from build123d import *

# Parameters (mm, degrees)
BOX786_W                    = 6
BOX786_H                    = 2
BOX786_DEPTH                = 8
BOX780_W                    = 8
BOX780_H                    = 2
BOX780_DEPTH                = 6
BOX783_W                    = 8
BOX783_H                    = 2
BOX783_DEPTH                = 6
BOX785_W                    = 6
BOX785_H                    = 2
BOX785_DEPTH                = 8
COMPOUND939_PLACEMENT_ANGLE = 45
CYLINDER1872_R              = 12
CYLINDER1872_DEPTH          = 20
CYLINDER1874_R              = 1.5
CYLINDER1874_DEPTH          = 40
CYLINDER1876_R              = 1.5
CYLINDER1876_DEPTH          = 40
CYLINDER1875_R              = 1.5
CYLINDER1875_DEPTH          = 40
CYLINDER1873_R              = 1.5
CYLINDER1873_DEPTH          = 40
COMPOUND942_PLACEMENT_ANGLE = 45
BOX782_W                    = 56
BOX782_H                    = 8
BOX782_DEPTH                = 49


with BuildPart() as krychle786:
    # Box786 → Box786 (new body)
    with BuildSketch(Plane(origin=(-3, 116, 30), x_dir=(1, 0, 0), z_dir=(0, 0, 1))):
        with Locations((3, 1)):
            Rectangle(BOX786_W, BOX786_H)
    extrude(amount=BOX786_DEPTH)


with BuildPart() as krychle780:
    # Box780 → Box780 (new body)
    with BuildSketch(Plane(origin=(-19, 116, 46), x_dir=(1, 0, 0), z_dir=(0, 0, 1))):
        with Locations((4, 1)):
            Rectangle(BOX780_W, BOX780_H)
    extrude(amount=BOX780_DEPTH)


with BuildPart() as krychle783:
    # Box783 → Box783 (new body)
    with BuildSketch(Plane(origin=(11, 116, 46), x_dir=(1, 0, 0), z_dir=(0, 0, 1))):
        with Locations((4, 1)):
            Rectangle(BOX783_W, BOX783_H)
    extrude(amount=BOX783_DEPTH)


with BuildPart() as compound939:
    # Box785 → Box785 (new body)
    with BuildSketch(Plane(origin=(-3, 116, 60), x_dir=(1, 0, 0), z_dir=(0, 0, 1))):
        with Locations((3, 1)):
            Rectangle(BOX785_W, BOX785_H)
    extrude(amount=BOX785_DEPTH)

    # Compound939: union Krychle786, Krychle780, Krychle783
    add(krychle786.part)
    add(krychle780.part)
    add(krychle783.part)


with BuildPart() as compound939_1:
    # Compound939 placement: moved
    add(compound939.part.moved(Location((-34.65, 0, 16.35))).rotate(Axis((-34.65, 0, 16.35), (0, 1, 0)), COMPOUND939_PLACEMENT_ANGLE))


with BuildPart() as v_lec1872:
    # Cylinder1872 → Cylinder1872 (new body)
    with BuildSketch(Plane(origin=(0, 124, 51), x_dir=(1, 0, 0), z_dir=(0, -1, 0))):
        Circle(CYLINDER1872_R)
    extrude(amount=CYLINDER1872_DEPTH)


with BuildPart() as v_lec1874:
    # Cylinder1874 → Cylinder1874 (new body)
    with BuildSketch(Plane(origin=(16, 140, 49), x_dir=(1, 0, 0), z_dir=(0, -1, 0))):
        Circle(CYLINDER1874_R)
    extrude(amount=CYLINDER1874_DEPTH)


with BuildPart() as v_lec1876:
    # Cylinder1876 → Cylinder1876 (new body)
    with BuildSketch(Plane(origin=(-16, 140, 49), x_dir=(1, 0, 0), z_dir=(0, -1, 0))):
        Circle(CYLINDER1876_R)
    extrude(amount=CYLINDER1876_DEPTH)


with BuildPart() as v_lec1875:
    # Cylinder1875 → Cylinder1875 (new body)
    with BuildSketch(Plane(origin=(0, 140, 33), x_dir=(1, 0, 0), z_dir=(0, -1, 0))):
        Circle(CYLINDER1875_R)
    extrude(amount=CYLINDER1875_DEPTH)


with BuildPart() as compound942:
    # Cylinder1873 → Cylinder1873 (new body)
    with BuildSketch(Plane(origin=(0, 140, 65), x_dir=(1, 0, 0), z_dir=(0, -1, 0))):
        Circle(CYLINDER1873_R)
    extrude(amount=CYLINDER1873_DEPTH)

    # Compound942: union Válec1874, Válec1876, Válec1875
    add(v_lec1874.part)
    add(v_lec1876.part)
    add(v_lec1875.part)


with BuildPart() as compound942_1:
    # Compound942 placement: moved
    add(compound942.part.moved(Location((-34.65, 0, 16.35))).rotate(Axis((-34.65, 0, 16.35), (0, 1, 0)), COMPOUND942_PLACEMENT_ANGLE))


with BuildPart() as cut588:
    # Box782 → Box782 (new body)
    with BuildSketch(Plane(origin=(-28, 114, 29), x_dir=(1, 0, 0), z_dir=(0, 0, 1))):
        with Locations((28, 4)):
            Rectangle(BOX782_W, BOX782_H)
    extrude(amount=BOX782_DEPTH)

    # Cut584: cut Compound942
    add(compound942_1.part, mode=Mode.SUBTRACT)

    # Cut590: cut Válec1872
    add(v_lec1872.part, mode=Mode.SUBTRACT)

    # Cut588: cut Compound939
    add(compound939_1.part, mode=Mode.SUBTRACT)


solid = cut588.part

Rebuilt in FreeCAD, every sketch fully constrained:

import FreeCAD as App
import Part
import Sketcher

doc = App.newDocument("Part")
body = doc.addObject("PartDesign::Body", "Body")

sketch1 = body.newObject("Sketcher::SketchObject", "Sketch")
sketch1.AttachmentSupport = (doc.getObject("XY_Plane"), [""])
sketch1.MapMode = "FlatFace"
sketch1.AttachmentOffset = App.Placement(App.Vector(0, 0, 30), App.Rotation())
sketch1.addGeometry(Part.LineSegment(App.Vector(-3, 118, 0), App.Vector(-3, 116, 0)), False)
sketch1.addGeometry(Part.LineSegment(App.Vector(-3, 116, 0), App.Vector(3, 116, 0)), False)
sketch1.addGeometry(Part.LineSegment(App.Vector(3, 116, 0), App.Vector(3, 118, 0)), False)
sketch1.addGeometry(Part.LineSegment(App.Vector(3, 118, 0), App.Vector(-3, 118, 0)), False)
sketch1.addConstraint(Sketcher.Constraint("Coincident", 0, 2, 1, 1))
sketch1.addConstraint(Sketcher.Constraint("Coincident", 1, 2, 2, 1))
sketch1.addConstraint(Sketcher.Constraint("Coincident", 2, 2, 3, 1))
sketch1.addConstraint(Sketcher.Constraint("Coincident", 3, 2, 0, 1))
sketch1.addConstraint(Sketcher.Constraint("Vertical", 0))
sketch1.addConstraint(Sketcher.Constraint("Horizontal", 1))
sketch1.addConstraint(Sketcher.Constraint("Vertical", 2))
sketch1.addConstraint(Sketcher.Constraint("Horizontal", 3))
sketch1.addConstraint(Sketcher.Constraint("DistanceX", 1, 1, 1, 2, 6.0))
sketch1.addConstraint(Sketcher.Constraint("DistanceY", 0, 2, 0, 1, 2.0))
sketch1.addConstraint(Sketcher.Constraint("DistanceX", 0, 2, -1, 1, 3.0))
sketch1.addConstraint(Sketcher.Constraint("DistanceY", -1, 1, 0, 2, 116.0))
pad1 = body.newObject("PartDesign::Pad", "Pad")
pad1.Profile = sketch1
pad1.Length = 8
body2 = doc.addObject("PartDesign::Body", "Body001")

sketch2 = body2.newObject("Sketcher::SketchObject", "Sketch001")
sketch2.AttachmentSupport = (doc.getObject("XY_Plane001"), [""])
sketch2.MapMode = "FlatFace"
sketch2.AttachmentOffset = App.Placement(App.Vector(0, 0, 46), App.Rotation())
sketch2.addGeometry(Part.LineSegment(App.Vector(-19, 118, 0), App.Vector(-19, 116, 0)), False)
sketch2.addGeometry(Part.LineSegment(App.Vector(-19, 116, 0), App.Vector(-11, 116, 0)), False)
sketch2.addGeometry(Part.LineSegment(App.Vector(-11, 116, 0), App.Vector(-11, 118, 0)), False)
sketch2.addGeometry(Part.LineSegment(App.Vector(-11, 118, 0), App.Vector(-19, 118, 0)), False)
sketch2.addConstraint(Sketcher.Constraint("Coincident", 0, 2, 1, 1))
sketch2.addConstraint(Sketcher.Constraint("Coincident", 1, 2, 2, 1))
sketch2.addConstraint(Sketcher.Constraint("Coincident", 2, 2, 3, 1))
sketch2.addConstraint(Sketcher.Constraint("Coincident", 3, 2, 0, 1))
sketch2.addConstraint(Sketcher.Constraint("Vertical", 0))
sketch2.addConstraint(Sketcher.Constraint("Horizontal", 1))
sketch2.addConstraint(Sketcher.Constraint("Vertical", 2))
sketch2.addConstraint(Sketcher.Constraint("Horizontal", 3))
sketch2.addConstraint(Sketcher.Constraint("DistanceX", 1, 1, 1, 2, 8.0))
sketch2.addConstraint(Sketcher.Constraint("DistanceY", 0, 2, 0, 1, 2.0))
sketch2.addConstraint(Sketcher.Constraint("DistanceX", 0, 2, -1, 1, 19.0))
sketch2.addConstraint(Sketcher.Constraint("DistanceY", -1, 1, 0, 2, 116.0))
pad2 = body2.newObject("PartDesign::Pad", "Pad001")
pad2.Profile = sketch2
pad2.Length = 6
body3 = doc.addObject("PartDesign::Body", "Body002")

sketch3 = body3.newObject("Sketcher::SketchObject", "Sketch002")
sketch3.AttachmentSupport = (doc.getObject("XY_Plane002"), [""])
sketch3.MapMode = "FlatFace"
sketch3.AttachmentOffset = App.Placement(App.Vector(0, 0, 46), App.Rotation())
sketch3.addGeometry(Part.LineSegment(App.Vector(11, 118, 0), App.Vector(11, 116, 0)), False)
sketch3.addGeometry(Part.LineSegment(App.Vector(11, 116, 0), App.Vector(19, 116, 0)), False)
sketch3.addGeometry(Part.LineSegment(App.Vector(19, 116, 0), App.Vector(19, 118, 0)), False)
sketch3.addGeometry(Part.LineSegment(App.Vector(19, 118, 0), App.Vector(11, 118, 0)), False)
sketch3.addConstraint(Sketcher.Constraint("Coincident", 0, 2, 1, 1))
sketch3.addConstraint(Sketcher.Constraint("Coincident", 1, 2, 2, 1))
sketch3.addConstraint(Sketcher.Constraint("Coincident", 2, 2, 3, 1))
sketch3.addConstraint(Sketcher.Constraint("Coincident", 3, 2, 0, 1))
sketch3.addConstraint(Sketcher.Constraint("Vertical", 0))
sketch3.addConstraint(Sketcher.Constraint("Horizontal", 1))
sketch3.addConstraint(Sketcher.Constraint("Vertical", 2))
sketch3.addConstraint(Sketcher.Constraint("Horizontal", 3))
sketch3.addConstraint(Sketcher.Constraint("DistanceX", 1, 1, 1, 2, 8.0))
sketch3.addConstraint(Sketcher.Constraint("DistanceY", 0, 2, 0, 1, 2.0))
sketch3.addConstraint(Sketcher.Constraint("DistanceX", -1, 1, 0, 2, 11.0))
sketch3.addConstraint(Sketcher.Constraint("DistanceY", -1, 1, 0, 2, 116.0))
pad3 = body3.newObject("PartDesign::Pad", "Pad002")
pad3.Profile = sketch3
pad3.Length = 6
body4 = doc.addObject("PartDesign::Body", "Body003")
body4.AllowCompound = True

sketch4 = body4.newObject("Sketcher::SketchObject", "Sketch003")
sketch4.AttachmentSupport = (doc.getObject("XY_Plane003"), [""])
sketch4.MapMode = "FlatFace"
sketch4.AttachmentOffset = App.Placement(App.Vector(0, 0, 60), App.Rotation())
sketch4.addGeometry(Part.LineSegment(App.Vector(-3, 118, 0), App.Vector(-3, 116, 0)), False)
sketch4.addGeometry(Part.LineSegment(App.Vector(-3, 116, 0), App.Vector(3, 116, 0)), False)
sketch4.addGeometry(Part.LineSegment(App.Vector(3, 116, 0), App.Vector(3, 118, 0)), False)
sketch4.addGeometry(Part.LineSegment(App.Vector(3, 118, 0), App.Vector(-3, 118, 0)), False)
sketch4.addConstraint(Sketcher.Constraint("Coincident", 0, 2, 1, 1))
sketch4.addConstraint(Sketcher.Constraint("Coincident", 1, 2, 2, 1))
sketch4.addConstraint(Sketcher.Constraint("Coincident", 2, 2, 3, 1))
sketch4.addConstraint(Sketcher.Constraint("Coincident", 3, 2, 0, 1))
sketch4.addConstraint(Sketcher.Constraint("Vertical", 0))
sketch4.addConstraint(Sketcher.Constraint("Horizontal", 1))
sketch4.addConstraint(Sketcher.Constraint("Vertical", 2))
sketch4.addConstraint(Sketcher.Constraint("Horizontal", 3))
sketch4.addConstraint(Sketcher.Constraint("DistanceX", 1, 1, 1, 2, 6.0))
sketch4.addConstraint(Sketcher.Constraint("DistanceY", 0, 2, 0, 1, 2.0))
sketch4.addConstraint(Sketcher.Constraint("DistanceX", 0, 2, -1, 1, 3.0))
sketch4.addConstraint(Sketcher.Constraint("DistanceY", -1, 1, 0, 2, 116.0))
pad4 = body4.newObject("PartDesign::Pad", "Pad003")
pad4.Profile = sketch4
pad4.Length = 8
doc.recompute()

boolean = body4.newObject("PartDesign::Boolean", "Boolean")
boolean.Type = "Fuse"
boolean.addObjects([body])
doc.recompute()

boolean2 = body4.newObject("PartDesign::Boolean", "Boolean001")
boolean2.Type = "Fuse"
boolean2.addObjects([body2])
doc.recompute()

boolean3 = body4.newObject("PartDesign::Boolean", "Boolean002")
boolean3.Type = "Fuse"
boolean3.addObjects([body3])
body5 = doc.addObject("PartDesign::Body", "Body004")
body5.AllowCompound = True
doc.recompute()

body4.Placement = App.Placement(App.Vector(-34.65, 0, 16.35), App.Rotation(App.Vector(0, 1, 0), 45))
boolean4 = body5.newObject("PartDesign::Boolean", "Boolean003")
boolean4.Type = "Fuse"
boolean4.addObjects([body4])
body6 = doc.addObject("PartDesign::Body", "Body005")

sketch5 = body6.newObject("Sketcher::SketchObject", "Sketch004")
sketch5.AttachmentSupport = (doc.getObject("XZ_Plane005"), [""])
sketch5.MapMode = "FlatFace"
sketch5.AttachmentOffset = App.Placement(App.Vector(0, 0, -124), App.Rotation())
sketch5.addGeometry(Part.Circle(App.Vector(0, 51, 0), App.Vector(0, 0, 1), 12), False)
sketch5.addConstraint(Sketcher.Constraint("PointOnObject", 0, 3, -2))
sketch5.addConstraint(Sketcher.Constraint("Diameter", 0, 24.0))
sketch5.addConstraint(Sketcher.Constraint("DistanceY", -1, 1, 0, 3, 51.0))
pad5 = body6.newObject("PartDesign::Pad", "Pad004")
pad5.Profile = sketch5
pad5.Length = 20
body7 = doc.addObject("PartDesign::Body", "Body006")

sketch6 = body7.newObject("Sketcher::SketchObject", "Sketch005")
sketch6.AttachmentSupport = (doc.getObject("XZ_Plane006"), [""])
sketch6.MapMode = "FlatFace"
sketch6.AttachmentOffset = App.Placement(App.Vector(0, 0, -140), App.Rotation())
sketch6.addGeometry(Part.Circle(App.Vector(16, 49, 0), App.Vector(0, 0, 1), 1.5), False)
sketch6.addConstraint(Sketcher.Constraint("Diameter", 0, 3.0))
sketch6.addConstraint(Sketcher.Constraint("DistanceX", -1, 1, 0, 3, 16.0))
sketch6.addConstraint(Sketcher.Constraint("DistanceY", -1, 1, 0, 3, 49.0))
pad6 = body7.newObject("PartDesign::Pad", "Pad005")
pad6.Profile = sketch6
pad6.Length = 40
body8 = doc.addObject("PartDesign::Body", "Body007")

sketch7 = body8.newObject("Sketcher::SketchObject", "Sketch006")
sketch7.AttachmentSupport = (doc.getObject("XZ_Plane007"), [""])
sketch7.MapMode = "FlatFace"
sketch7.AttachmentOffset = App.Placement(App.Vector(0, 0, -140), App.Rotation())
sketch7.addGeometry(Part.Circle(App.Vector(-16, 49, 0), App.Vector(0, 0, 1), 1.5), False)
sketch7.addConstraint(Sketcher.Constraint("Diameter", 0, 3.0))
sketch7.addConstraint(Sketcher.Constraint("DistanceX", 0, 3, -1, 1, 16.0))
sketch7.addConstraint(Sketcher.Constraint("DistanceY", -1, 1, 0, 3, 49.0))
pad7 = body8.newObject("PartDesign::Pad", "Pad006")
pad7.Profile = sketch7
pad7.Length = 40
body9 = doc.addObject("PartDesign::Body", "Body008")

sketch8 = body9.newObject("Sketcher::SketchObject", "Sketch007")
sketch8.AttachmentSupport = (doc.getObject("XZ_Plane008"), [""])
sketch8.MapMode = "FlatFace"
sketch8.AttachmentOffset = App.Placement(App.Vector(0, 0, -140), App.Rotation())
sketch8.addGeometry(Part.Circle(App.Vector(0, 33, 0), App.Vector(0, 0, 1), 1.5), False)
sketch8.addConstraint(Sketcher.Constraint("PointOnObject", 0, 3, -2))
sketch8.addConstraint(Sketcher.Constraint("Diameter", 0, 3.0))
sketch8.addConstraint(Sketcher.Constraint("DistanceY", -1, 1, 0, 3, 33.0))
pad8 = body9.newObject("PartDesign::Pad", "Pad007")
pad8.Profile = sketch8
pad8.Length = 40
body10 = doc.addObject("PartDesign::Body", "Body009")
body10.AllowCompound = True

sketch9 = body10.newObject("Sketcher::SketchObject", "Sketch008")
sketch9.AttachmentSupport = (doc.getObject("XZ_Plane009"), [""])
sketch9.MapMode = "FlatFace"
sketch9.AttachmentOffset = App.Placement(App.Vector(0, 0, -140), App.Rotation())
sketch9.addGeometry(Part.Circle(App.Vector(0, 65, 0), App.Vector(0, 0, 1), 1.5), False)
sketch9.addConstraint(Sketcher.Constraint("PointOnObject", 0, 3, -2))
sketch9.addConstraint(Sketcher.Constraint("Diameter", 0, 3.0))
sketch9.addConstraint(Sketcher.Constraint("DistanceY", -1, 1, 0, 3, 65.0))
pad9 = body10.newObject("PartDesign::Pad", "Pad008")
pad9.Profile = sketch9
pad9.Length = 40
doc.recompute()

boolean5 = body10.newObject("PartDesign::Boolean", "Boolean004")
boolean5.Type = "Fuse"
boolean5.addObjects([body7])
doc.recompute()

boolean6 = body10.newObject("PartDesign::Boolean", "Boolean005")
boolean6.Type = "Fuse"
boolean6.addObjects([body8])
doc.recompute()

boolean7 = body10.newObject("PartDesign::Boolean", "Boolean006")
boolean7.Type = "Fuse"
boolean7.addObjects([body9])
body11 = doc.addObject("PartDesign::Body", "Body010")
body11.AllowCompound = True
doc.recompute()

body10.Placement = App.Placement(App.Vector(-34.65, 0, 16.35), App.Rotation(App.Vector(0, 1, 0), 45))
boolean8 = body11.newObject("PartDesign::Boolean", "Boolean007")
boolean8.Type = "Fuse"
boolean8.addObjects([body10])
body12 = doc.addObject("PartDesign::Body", "Body011")

sketch10 = body12.newObject("Sketcher::SketchObject", "Sketch009")
sketch10.AttachmentSupport = (doc.getObject("XY_Plane011"), [""])
sketch10.MapMode = "FlatFace"
sketch10.AttachmentOffset = App.Placement(App.Vector(0, 0, 29), App.Rotation())
sketch10.addGeometry(Part.LineSegment(App.Vector(-28, 122, 0), App.Vector(-28, 114, 0)), False)
sketch10.addGeometry(Part.LineSegment(App.Vector(-28, 114, 0), App.Vector(28, 114, 0)), False)
sketch10.addGeometry(Part.LineSegment(App.Vector(28, 114, 0), App.Vector(28, 122, 0)), False)
sketch10.addGeometry(Part.LineSegment(App.Vector(28, 122, 0), App.Vector(-28, 122, 0)), False)
sketch10.addConstraint(Sketcher.Constraint("Coincident", 0, 2, 1, 1))
sketch10.addConstraint(Sketcher.Constraint("Coincident", 1, 2, 2, 1))
sketch10.addConstraint(Sketcher.Constraint("Coincident", 2, 2, 3, 1))
sketch10.addConstraint(Sketcher.Constraint("Coincident", 3, 2, 0, 1))
sketch10.addConstraint(Sketcher.Constraint("Vertical", 0))
sketch10.addConstraint(Sketcher.Constraint("Horizontal", 1))
sketch10.addConstraint(Sketcher.Constraint("Vertical", 2))
sketch10.addConstraint(Sketcher.Constraint("Horizontal", 3))
sketch10.addConstraint(Sketcher.Constraint("DistanceX", 1, 1, 1, 2, 56.0))
sketch10.addConstraint(Sketcher.Constraint("DistanceY", 0, 2, 0, 1, 8.0))
sketch10.addConstraint(Sketcher.Constraint("DistanceX", 0, 2, -1, 1, 28.0))
sketch10.addConstraint(Sketcher.Constraint("DistanceY", -1, 1, 0, 2, 114.0))
pad10 = body12.newObject("PartDesign::Pad", "Pad009")
pad10.Profile = sketch10
pad10.Length = 49
doc.recompute()

boolean9 = body12.newObject("PartDesign::Boolean", "Boolean008")
boolean9.Type = "Cut"
boolean9.addObjects([body11])
doc.recompute()

boolean10 = body12.newObject("PartDesign::Boolean", "Boolean009")
boolean10.Type = "Cut"
boolean10.addObjects([body6])
doc.recompute()

boolean11 = body12.newObject("PartDesign::Boolean", "Boolean010")
boolean11.Type = "Cut"
boolean11.addObjects([body5])

doc.recompute()
